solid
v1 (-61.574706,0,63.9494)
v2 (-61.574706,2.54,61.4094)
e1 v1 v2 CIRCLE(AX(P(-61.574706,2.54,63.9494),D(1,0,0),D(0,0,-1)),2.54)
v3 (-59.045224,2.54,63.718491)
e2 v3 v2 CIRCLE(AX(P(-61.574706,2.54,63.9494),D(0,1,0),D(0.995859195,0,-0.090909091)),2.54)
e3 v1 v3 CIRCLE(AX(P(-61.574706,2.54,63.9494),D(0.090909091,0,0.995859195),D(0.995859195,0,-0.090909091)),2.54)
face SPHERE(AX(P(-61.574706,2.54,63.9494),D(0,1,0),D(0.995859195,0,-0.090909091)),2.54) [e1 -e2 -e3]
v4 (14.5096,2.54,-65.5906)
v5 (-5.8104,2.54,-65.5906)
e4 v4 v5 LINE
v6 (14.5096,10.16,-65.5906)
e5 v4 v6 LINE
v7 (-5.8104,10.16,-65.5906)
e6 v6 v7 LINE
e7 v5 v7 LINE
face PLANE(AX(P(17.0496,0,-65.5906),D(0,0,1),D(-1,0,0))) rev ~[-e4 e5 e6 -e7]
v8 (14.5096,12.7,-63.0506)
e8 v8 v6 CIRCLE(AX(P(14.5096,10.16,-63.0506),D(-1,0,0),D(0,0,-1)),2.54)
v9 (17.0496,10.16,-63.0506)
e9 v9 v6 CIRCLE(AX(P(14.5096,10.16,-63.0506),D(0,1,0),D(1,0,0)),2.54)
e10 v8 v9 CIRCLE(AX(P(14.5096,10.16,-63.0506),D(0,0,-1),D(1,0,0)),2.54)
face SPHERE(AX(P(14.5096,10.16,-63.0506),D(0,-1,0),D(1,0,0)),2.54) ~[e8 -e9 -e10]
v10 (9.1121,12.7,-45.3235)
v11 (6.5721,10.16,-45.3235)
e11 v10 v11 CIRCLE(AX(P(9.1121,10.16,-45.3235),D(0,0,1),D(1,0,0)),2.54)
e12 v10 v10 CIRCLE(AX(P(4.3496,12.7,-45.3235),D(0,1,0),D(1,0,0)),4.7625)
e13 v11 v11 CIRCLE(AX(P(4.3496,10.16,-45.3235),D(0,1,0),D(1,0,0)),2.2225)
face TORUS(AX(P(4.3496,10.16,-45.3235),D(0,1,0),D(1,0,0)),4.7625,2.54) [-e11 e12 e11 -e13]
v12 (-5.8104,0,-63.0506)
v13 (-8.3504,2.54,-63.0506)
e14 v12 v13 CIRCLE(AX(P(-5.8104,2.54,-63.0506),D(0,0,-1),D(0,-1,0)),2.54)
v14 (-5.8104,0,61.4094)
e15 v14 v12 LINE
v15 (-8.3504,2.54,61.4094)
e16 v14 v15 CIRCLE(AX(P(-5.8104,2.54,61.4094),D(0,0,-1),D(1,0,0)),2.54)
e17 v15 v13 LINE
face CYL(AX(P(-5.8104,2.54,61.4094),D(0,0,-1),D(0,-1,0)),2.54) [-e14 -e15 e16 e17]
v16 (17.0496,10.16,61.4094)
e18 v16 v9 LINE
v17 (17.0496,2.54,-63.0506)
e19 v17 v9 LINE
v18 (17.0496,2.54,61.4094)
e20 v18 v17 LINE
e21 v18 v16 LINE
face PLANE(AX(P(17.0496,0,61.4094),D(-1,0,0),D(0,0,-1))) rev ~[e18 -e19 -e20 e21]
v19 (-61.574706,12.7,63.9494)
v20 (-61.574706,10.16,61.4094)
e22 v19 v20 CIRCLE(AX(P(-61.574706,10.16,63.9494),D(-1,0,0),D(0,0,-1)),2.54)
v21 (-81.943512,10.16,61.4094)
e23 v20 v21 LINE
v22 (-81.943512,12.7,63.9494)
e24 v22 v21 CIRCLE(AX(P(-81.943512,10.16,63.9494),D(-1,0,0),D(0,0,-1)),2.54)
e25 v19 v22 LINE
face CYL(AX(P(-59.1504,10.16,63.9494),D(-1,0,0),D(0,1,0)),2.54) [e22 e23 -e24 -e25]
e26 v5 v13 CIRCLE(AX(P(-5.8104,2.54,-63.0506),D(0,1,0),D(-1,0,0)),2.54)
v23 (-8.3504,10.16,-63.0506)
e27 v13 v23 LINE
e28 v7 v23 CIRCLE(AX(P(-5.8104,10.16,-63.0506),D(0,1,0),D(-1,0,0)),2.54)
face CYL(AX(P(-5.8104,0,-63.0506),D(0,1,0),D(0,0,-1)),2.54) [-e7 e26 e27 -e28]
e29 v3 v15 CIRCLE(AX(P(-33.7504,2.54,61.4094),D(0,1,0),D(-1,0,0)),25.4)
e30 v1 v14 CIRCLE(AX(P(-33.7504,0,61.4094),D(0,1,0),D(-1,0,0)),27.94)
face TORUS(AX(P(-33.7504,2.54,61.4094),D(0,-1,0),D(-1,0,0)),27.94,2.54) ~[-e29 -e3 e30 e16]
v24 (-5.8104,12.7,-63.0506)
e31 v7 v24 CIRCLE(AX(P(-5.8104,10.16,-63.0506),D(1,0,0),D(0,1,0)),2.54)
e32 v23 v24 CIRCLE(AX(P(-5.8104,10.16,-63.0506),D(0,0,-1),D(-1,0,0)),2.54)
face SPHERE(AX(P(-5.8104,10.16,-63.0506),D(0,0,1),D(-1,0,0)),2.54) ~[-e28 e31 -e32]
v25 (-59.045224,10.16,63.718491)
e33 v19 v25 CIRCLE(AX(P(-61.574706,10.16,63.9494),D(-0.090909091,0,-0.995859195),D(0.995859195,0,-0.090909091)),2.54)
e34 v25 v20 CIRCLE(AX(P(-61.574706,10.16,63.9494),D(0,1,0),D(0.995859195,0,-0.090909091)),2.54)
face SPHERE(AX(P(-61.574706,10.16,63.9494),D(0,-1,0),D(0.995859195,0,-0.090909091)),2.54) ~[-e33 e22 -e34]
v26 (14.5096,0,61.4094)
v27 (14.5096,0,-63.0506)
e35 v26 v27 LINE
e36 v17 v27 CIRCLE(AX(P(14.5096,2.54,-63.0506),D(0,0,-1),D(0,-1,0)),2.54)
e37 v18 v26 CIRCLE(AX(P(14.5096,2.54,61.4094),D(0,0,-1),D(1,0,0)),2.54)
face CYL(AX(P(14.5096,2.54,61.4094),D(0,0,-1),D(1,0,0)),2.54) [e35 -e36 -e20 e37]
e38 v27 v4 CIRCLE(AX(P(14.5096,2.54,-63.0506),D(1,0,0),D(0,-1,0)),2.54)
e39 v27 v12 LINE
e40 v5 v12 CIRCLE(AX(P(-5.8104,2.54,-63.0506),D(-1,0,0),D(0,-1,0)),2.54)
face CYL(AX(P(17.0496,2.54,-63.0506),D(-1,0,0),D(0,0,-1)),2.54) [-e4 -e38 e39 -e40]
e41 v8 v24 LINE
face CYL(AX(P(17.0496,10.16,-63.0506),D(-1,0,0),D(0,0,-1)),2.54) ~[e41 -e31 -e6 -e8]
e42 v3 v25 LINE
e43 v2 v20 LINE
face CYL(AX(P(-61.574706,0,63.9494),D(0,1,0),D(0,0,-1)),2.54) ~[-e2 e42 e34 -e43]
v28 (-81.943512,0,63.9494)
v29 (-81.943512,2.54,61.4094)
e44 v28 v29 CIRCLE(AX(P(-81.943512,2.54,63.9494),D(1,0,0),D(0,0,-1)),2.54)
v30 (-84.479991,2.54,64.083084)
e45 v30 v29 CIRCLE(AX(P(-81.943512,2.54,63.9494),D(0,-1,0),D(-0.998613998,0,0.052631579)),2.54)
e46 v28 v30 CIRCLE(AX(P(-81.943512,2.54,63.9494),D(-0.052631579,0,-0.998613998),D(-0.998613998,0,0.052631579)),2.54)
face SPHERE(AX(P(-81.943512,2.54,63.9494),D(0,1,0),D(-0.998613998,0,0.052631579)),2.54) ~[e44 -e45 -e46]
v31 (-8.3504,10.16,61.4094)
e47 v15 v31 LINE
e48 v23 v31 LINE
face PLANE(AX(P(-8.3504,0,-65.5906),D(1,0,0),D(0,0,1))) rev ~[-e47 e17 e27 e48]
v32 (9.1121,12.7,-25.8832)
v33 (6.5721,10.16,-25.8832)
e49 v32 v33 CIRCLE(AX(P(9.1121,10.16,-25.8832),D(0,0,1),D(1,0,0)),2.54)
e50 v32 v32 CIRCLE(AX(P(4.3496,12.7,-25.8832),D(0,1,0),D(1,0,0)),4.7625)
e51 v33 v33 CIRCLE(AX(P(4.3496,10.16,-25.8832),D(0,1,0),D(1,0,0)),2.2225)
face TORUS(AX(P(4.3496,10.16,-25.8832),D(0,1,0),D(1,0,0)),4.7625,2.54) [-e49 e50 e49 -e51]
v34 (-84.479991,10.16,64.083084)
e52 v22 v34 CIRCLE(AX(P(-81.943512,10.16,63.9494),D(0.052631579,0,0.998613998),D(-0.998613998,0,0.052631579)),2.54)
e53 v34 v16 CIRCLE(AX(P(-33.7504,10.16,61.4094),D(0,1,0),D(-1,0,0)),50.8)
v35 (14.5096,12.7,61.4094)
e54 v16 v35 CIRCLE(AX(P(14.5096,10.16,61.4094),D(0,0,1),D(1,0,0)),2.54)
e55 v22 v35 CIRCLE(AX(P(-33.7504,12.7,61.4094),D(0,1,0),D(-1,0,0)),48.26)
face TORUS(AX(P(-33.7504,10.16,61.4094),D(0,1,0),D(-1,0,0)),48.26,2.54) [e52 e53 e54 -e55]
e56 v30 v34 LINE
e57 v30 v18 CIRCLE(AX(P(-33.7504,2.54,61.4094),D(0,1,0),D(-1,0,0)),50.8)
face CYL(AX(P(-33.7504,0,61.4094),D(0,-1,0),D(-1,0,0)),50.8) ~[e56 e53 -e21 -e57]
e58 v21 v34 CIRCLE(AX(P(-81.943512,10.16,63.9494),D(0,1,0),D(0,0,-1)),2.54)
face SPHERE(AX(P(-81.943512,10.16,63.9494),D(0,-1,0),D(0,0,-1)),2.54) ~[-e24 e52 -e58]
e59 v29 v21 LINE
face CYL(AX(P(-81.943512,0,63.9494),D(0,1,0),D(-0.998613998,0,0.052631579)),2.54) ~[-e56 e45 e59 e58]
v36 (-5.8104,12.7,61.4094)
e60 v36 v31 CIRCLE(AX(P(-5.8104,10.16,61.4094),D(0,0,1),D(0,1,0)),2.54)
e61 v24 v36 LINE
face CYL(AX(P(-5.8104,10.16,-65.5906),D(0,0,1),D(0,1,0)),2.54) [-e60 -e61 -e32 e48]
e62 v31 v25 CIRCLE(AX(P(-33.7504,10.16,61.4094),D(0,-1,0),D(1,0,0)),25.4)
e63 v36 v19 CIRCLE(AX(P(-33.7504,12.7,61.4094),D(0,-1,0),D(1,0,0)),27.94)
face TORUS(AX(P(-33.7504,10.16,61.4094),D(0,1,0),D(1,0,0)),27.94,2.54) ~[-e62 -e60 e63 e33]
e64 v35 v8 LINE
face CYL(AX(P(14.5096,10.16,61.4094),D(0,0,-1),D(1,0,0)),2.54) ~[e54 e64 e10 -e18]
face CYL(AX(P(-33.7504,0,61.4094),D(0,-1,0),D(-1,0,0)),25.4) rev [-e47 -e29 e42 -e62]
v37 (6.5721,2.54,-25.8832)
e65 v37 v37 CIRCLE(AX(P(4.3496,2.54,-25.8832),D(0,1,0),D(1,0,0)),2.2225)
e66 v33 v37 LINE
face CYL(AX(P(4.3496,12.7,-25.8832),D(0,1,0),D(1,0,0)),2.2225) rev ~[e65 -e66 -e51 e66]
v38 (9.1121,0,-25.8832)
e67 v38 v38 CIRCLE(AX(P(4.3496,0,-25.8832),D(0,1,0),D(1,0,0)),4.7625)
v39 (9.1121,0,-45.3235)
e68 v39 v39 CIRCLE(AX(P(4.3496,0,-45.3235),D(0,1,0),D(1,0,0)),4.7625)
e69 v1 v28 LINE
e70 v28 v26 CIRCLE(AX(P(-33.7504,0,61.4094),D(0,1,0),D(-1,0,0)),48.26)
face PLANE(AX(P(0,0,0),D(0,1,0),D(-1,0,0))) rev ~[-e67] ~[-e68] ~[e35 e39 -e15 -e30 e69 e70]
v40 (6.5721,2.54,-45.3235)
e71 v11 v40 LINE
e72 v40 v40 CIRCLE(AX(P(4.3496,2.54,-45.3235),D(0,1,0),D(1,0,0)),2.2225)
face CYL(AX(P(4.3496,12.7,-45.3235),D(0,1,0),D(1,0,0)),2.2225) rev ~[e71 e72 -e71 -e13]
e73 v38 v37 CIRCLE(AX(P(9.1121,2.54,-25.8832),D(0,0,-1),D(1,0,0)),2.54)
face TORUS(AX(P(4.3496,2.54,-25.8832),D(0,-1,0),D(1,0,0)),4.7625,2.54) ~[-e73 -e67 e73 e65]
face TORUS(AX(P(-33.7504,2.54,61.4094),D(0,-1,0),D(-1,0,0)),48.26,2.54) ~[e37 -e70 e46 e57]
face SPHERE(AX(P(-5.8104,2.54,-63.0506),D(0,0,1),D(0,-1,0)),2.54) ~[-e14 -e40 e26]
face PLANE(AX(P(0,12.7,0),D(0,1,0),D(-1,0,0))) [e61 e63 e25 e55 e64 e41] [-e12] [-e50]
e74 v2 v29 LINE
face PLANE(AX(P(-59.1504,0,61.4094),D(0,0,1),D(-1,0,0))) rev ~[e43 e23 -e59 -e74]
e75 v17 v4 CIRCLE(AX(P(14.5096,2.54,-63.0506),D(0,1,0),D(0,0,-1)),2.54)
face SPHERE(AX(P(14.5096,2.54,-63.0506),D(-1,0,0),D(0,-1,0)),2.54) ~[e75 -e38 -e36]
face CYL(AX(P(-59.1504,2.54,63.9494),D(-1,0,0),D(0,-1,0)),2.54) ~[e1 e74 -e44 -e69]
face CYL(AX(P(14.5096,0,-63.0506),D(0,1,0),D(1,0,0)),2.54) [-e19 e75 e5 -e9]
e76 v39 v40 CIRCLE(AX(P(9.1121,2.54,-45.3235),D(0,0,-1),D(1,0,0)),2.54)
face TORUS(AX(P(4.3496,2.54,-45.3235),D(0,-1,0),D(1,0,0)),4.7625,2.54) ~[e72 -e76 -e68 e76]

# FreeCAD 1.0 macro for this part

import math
import FreeCAD as App
import Part
import Sketcher
Q = App.Units.Quantity

doc = App.newDocument("Part")
params = doc.addObject("Spreadsheet::Sheet", "Params")
for row, (alias, value) in enumerate([
    ("sketch1_radius", "1 in"),
    ("sketch1_width", "1 in"),
    ("sketch1_height", "5 in"),
    ("pad1_length", "0.5 in"),
    ("sketch2_diameter", "0.175 in"),
    ("fillet_radius", "0.1 in"),
], start=1):
    params.set(f"A{row}", alias)
    params.set(f"B{row}", "=" + value)
    params.setAlias(f"B{row}", alias)

body = doc.addObject("PartDesign::Body", "Body")

sketch1 = body.newObject("Sketcher::SketchObject", "Sketch")
sketch1.AttachmentSupport = (doc.getObject("XZ_Plane"), [""])
sketch1.MapMode = "FlatFace"
sketch1.addGeometry([
    Part.LineSegment(App.Vector(17.0496, 61.4094, 0), App.Vector(17.0496, -65.5906, 0)),
    Part.LineSegment(App.Vector(17.0496, -65.5906, 0), App.Vector(-8.3504, -65.5906, 0)),
    Part.LineSegment(App.Vector(-8.3504, -65.5906, 0), App.Vector(-8.3504, 61.4094, 0)),
    Part.ArcOfCircle(Part.Circle(App.Vector(-33.7504, 61.4094, 0), App.Vector(0, 0, 1), 25.4), math.radians(0), math.radians(180)),
    Part.LineSegment(App.Vector(-59.1504, 61.4094, 0), App.Vector(-84.5504, 61.4094, 0)),
    Part.ArcOfCircle(Part.Circle(App.Vector(-33.7504, 61.4094, 0), App.Vector(0, 0, 1), 50.8), math.radians(0), math.radians(180)),
], False)
sketch1.addConstraint([
    Sketcher.Constraint("Coincident", 0, 2, 1, 1),
    Sketcher.Constraint("Coincident", 1, 2, 2, 1),
    Sketcher.Constraint("Tangent", 2, 2, 3, 1),
    Sketcher.Constraint("Coincident", 3, 2, 4, 1),
    Sketcher.Constraint("Coincident", 4, 2, 5, 2),
    Sketcher.Constraint("Tangent", 5, 1, 0, 1),
    Sketcher.Constraint("Vertical", 0),
    Sketcher.Constraint("Horizontal", 1),
    Sketcher.Constraint("Vertical", 2),
    Sketcher.Constraint("Horizontal", 4),
    Sketcher.Constraint("Coincident", 5, 3, 3, 3),
    Sketcher.Constraint("Horizontal", 2, 2, 3, 2),
    Sketcher.Constraint("Radius", 3, Q("1 in")),
    Sketcher.Constraint("DistanceX", 1, 2, 1, 1, Q("1 in")),
    Sketcher.Constraint("DistanceY", 0, 2, 0, 1, Q("5 in")),
    Sketcher.Constraint("DistanceY", -1, 1, 3, 3, Q("2.4177 in")),
    Sketcher.Constraint("DistanceX", 3, 3, -1, 1, 33.7504),
])
sketch1.setExpression("Constraints[12]", "Params.sketch1_radius")
sketch1.setExpression("Constraints[13]", "Params.sketch1_width")
sketch1.setExpression("Constraints[14]", "Params.sketch1_height")
pad1 = body.newObject("PartDesign::Pad", "Pad")
pad1.Profile = sketch1
pad1.setExpression("Length", "Params.pad1_length")
pad1.Reversed = True

sketch2 = body.newObject("Sketcher::SketchObject", "Sketch001")
sketch2.AttachmentSupport = (doc.getObject("XZ_Plane"), [""])
sketch2.MapMode = "FlatFace"
sketch2.AttachmentOffset = App.Placement(App.Vector(0, 0, -0.5 * 25.4), App.Rotation())
sketch2.addGeometry([
    Part.Circle(App.Vector(4.3496, -45.3235, 0), App.Vector(0, 0, 1), 2.2225),
    Part.Circle(App.Vector(4.3496, -25.8832, 0), App.Vector(0, 0, 1), 2.2225),
], False)
sketch2.addConstraint([
    Sketcher.Constraint("Equal", 0, 1),
    Sketcher.Constraint("Vertical", 0, 3, 1, 3),
    Sketcher.Constraint("Diameter", 0, Q("0.175 in")),
    Sketcher.Constraint("DistanceY", 0, 3, 1, 3, 19.4403),
    Sketcher.Constraint("DistanceY", 0, 3, -1, 1, Q("1.7844 in")),
    Sketcher.Constraint("DistanceX", -1, 1, 0, 3, 4.3496),
])
sketch2.setExpression("Constraints[2]", "Params.sketch2_diameter")
pocket1 = body.newObject("PartDesign::Pocket", "Pocket")
pocket1.Profile = sketch2
pocket1.Type = "ThroughAll"
pocket1.Reversed = True
doc.recompute()

fillet = body.newObject("PartDesign::Fillet", "Fillet")
fillet.Base = (pocket1, ["Edge1"])
fillet.UseAllEdges = True
fillet.setExpression("Radius", "Params.fillet_radius")

doc.recompute()
